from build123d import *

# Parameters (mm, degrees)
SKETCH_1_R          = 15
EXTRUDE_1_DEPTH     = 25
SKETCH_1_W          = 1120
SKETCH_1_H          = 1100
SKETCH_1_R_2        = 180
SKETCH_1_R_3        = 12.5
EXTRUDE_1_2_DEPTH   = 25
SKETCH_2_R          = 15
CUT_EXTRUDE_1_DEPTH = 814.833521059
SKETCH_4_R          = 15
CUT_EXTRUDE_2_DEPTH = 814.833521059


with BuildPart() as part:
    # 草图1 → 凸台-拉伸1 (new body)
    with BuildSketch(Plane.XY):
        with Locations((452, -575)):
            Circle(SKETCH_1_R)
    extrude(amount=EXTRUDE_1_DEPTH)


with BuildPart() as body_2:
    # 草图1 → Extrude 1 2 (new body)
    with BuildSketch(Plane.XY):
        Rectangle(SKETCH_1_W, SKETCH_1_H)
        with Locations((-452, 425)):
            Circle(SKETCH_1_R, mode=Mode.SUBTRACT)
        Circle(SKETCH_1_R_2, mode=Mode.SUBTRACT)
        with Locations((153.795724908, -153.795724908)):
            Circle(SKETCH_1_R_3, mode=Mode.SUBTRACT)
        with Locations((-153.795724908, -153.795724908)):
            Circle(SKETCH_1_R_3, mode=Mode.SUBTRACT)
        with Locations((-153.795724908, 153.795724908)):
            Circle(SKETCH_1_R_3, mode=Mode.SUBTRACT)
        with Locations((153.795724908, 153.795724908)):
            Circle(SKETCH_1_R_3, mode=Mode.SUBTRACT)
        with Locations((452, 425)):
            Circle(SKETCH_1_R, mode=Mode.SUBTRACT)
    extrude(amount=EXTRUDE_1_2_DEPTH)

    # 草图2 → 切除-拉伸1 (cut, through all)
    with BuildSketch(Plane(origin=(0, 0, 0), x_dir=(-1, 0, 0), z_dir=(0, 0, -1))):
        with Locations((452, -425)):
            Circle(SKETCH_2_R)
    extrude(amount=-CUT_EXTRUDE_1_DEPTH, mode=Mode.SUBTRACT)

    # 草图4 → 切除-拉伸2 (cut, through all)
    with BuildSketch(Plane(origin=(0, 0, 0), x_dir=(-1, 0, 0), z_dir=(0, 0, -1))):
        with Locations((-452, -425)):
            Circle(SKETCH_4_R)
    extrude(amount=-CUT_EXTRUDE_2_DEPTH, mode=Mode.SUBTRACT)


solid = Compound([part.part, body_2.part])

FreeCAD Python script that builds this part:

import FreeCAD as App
import Part
import Sketcher

V = App.Vector

doc = App.newDocument("Part")
body = doc.addObject("PartDesign::Body", "Body")

# Sketch on XY plane
sketch1 = body.newObject("Sketcher::SketchObject", "Sketch")
sketch1.AttachmentSupport = (doc.getObject("XY_Plane"), [""])
sketch1.MapMode = "FlatFace"
sketch1.addGeometry(Part.Circle(V(452, -575, 0), V(0, 0, 1), 15), False)
sketch1.addConstraint(Sketcher.Constraint("Diameter", 0, 30.0))
sketch1.addConstraint(Sketcher.Constraint("DistanceX", -1, 1, 0, 3, 452.0))
sketch1.addConstraint(Sketcher.Constraint("DistanceY", 0, 3, -1, 1, 575.0))
pad1 = body.newObject("PartDesign::Pad", "Pad")
pad1.Profile = sketch1
pad1.Length = 25
body2 = doc.addObject("PartDesign::Body", "Body001")

# Sketch on XY plane
sketch2 = body2.newObject("Sketcher::SketchObject", "Sketch001")
sketch2.AttachmentSupport = (doc.getObject("XY_Plane001"), [""])
sketch2.MapMode = "FlatFace"
sketch2.addGeometry(Part.LineSegment(V(-560, 550, 0), V(-560, -550, 0)), False)
sketch2.addGeometry(Part.LineSegment(V(-560, -550, 0), V(560, -550, 0)), False)
sketch2.addGeometry(Part.LineSegment(V(560, -550, 0), V(560, 550, 0)), False)
sketch2.addGeometry(Part.LineSegment(V(560, 550, 0), V(-560, 550, 0)), False)
sketch2.addGeometry(Part.Circle(V(-154, -154, 0), V(0, 0, 1), 12), False)
sketch2.addGeometry(Part.Circle(V(154, -154, 0), V(0, 0, 1), 12), False)
sketch2.addGeometry(Part.Circle(V(0, 0, 0), V(0, 0, 1), 180), False)
sketch2.addGeometry(Part.Circle(V(-154, 154, 0), V(0, 0, 1), 12), False)
sketch2.addGeometry(Part.Circle(V(-452, 425, 0), V(0, 0, 1), 15), False)
sketch2.addGeometry(Part.Circle(V(154, 154, 0), V(0, 0, 1), 12), False)
sketch2.addGeometry(Part.Circle(V(452, 425, 0), V(0, 0, 1), 15), False)
sketch2.addConstraint(Sketcher.Constraint("Coincident", 0, 2, 1, 1))
sketch2.addConstraint(Sketcher.Constraint("Coincident", 1, 2, 2, 1))
sketch2.addConstraint(Sketcher.Constraint("Coincident", 2, 2, 3, 1))
sketch2.addConstraint(Sketcher.Constraint("Coincident", 3, 2, 0, 1))
sketch2.addConstraint(Sketcher.Constraint("Vertical", 0))
sketch2.addConstraint(Sketcher.Constraint("Horizontal", 1))
sketch2.addConstraint(Sketcher.Constraint("Vertical", 2))
sketch2.addConstraint(Sketcher.Constraint("Horizontal", 3))
sketch2.addConstraint(Sketcher.Constraint("Coincident", 6, 3, -1, 1))
sketch2.addConstraint(Sketcher.Constraint("Equal", 4, 5))
sketch2.addConstraint(Sketcher.Constraint("Equal", 5, 7))
sketch2.addConstraint(Sketcher.Constraint("Equal", 7, 9))
sketch2.addConstraint(Sketcher.Constraint("Equal", 8, 10))
sketch2.addConstraint(Sketcher.Constraint("Symmetric", 5, 3, 7, 3, -1, 1))
sketch2.addConstraint(Sketcher.Constraint("Symmetric", 4, 3, 9, 3, -1, 1))
sketch2.addConstraint(Sketcher.Constraint("Symmetric", 0, 2, 2, 2, -1, 1))
sketch2.addConstraint(Sketcher.Constraint("Symmetric", 4, 3, 5, 3, -2))
sketch2.addConstraint(Sketcher.Constraint("Symmetric", 8, 3, 10, 3, -2))
sketch2.addConstraint(Sketcher.Constraint("Diameter", 4, 25.0))
sketch2.addConstraint(Sketcher.Constraint("Diameter", 6, 360.0))
sketch2.addConstraint(Sketcher.Constraint("Diameter", 8, 30.0))
sketch2.addConstraint(Sketcher.Constraint("DistanceX", 1, 1, 1, 2, 1120.0))
sketch2.addConstraint(Sketcher.Constraint("DistanceY", 0, 2, 0, 1, 1100.0))
sketch2.addConstraint(Sketcher.Constraint("DistanceX", 8, 3, -1, 1, 452.0))
sketch2.addConstraint(Sketcher.Constraint("DistanceY", -1, 1, 8, 3, 425.0))
sketch2.addConstraint(Sketcher.Constraint("DistanceX", 4, 3, 5, 3, 307.59145))
sketch2.addConstraint(Sketcher.Constraint("DistanceY", 4, 3, 7, 3, 307.59145))
pad2 = body2.newObject("PartDesign::Pad", "Pad001")
pad2.Profile = sketch2
pad2.Length = 25

# Sketch on XY plane
sketch3 = body2.newObject("Sketcher::SketchObject", "Sketch002")
sketch3.AttachmentSupport = (doc.getObject("XY_Plane001"), [""])
sketch3.MapMode = "FlatFace"
sketch3.addGeometry(Part.Circle(V(-452, -425, 0), V(0, 0, 1), 15), False)
sketch3.addConstraint(Sketcher.Constraint("Diameter", 0, 30.0))
sketch3.addConstraint(Sketcher.Constraint("DistanceX", 0, 3, -1, 1, 452.0))
sketch3.addConstraint(Sketcher.Constraint("DistanceY", 0, 3, -1, 1, 425.0))
pocket1 = body2.newObject("PartDesign::Pocket", "Pocket")
pocket1.Profile = sketch3
pocket1.Type = "ThroughAll"
pocket1.Reversed = True

# Sketch on XY plane
sketch4 = body2.newObject("Sketcher::SketchObject", "Sketch003")
sketch4.AttachmentSupport = (doc.getObject("XY_Plane001"), [""])
sketch4.MapMode = "FlatFace"
sketch4.addGeometry(Part.Circle(V(452, -425, 0), V(0, 0, 1), 15), False)
sketch4.addConstraint(Sketcher.Constraint("Diameter", 0, 30.0))
sketch4.addConstraint(Sketcher.Constraint("DistanceX", -1, 1, 0, 3, 452.0))
sketch4.addConstraint(Sketcher.Constraint("DistanceY", 0, 3, -1, 1, 425.0))
pocket2 = body2.newObject("PartDesign::Pocket", "Pocket001")
pocket2.Profile = sketch4
pocket2.Type = "ThroughAll"
pocket2.Reversed = True

doc.recompute()
